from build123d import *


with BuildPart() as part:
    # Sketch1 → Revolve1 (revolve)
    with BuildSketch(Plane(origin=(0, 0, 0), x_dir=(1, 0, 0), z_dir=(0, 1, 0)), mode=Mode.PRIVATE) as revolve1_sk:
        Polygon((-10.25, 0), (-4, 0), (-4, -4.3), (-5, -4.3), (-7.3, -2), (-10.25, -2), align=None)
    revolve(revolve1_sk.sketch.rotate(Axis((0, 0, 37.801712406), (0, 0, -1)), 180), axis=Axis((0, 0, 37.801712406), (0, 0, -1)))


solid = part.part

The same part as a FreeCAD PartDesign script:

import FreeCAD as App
import Part
import Sketcher
Q = App.Units.Quantity

doc = App.newDocument("Part")
body = doc.addObject("PartDesign::Body", "Body")

# Sketch on XZ plane
sketch1 = body.newObject("Sketcher::SketchObject", "Sketch")
sketch1.AttachmentSupport = (doc.getObject("XZ_Plane"), [""])
sketch1.MapMode = "FlatFace"
sketch1.addGeometry([
    Part.LineSegment(App.Vector(-4, 0, 0), App.Vector(-10.2, 0, 0)),  # 0
    Part.LineSegment(App.Vector(-10.2, 0, 0), App.Vector(-10.2, 2, 0)),  # 1
    Part.LineSegment(App.Vector(-10.2, 2, 0), App.Vector(-7.3, 2, 0)),  # 2
    Part.LineSegment(App.Vector(-7.3, 2, 0), App.Vector(-5, 4.3, 0)),  # 3
    Part.LineSegment(App.Vector(-5, 4.3, 0), App.Vector(-4, 4.3, 0)),  # 4
    Part.LineSegment(App.Vector(-4, 4.3, 0), App.Vector(-4, 0, 0)),  # 5
], False)
sketch1.addConstraint([
    Sketcher.Constraint("Coincident", 0, 2, 1, 1),
    Sketcher.Constraint("Coincident", 1, 2, 2, 1),
    Sketcher.Constraint("Coincident", 2, 2, 3, 1),
    Sketcher.Constraint("Coincident", 3, 2, 4, 1),
    Sketcher.Constraint("Coincident", 4, 2, 5, 1),
    Sketcher.Constraint("Coincident", 5, 2, 0, 1),
    Sketcher.Constraint("Horizontal", 0),
    Sketcher.Constraint("Vertical", 1),
    Sketcher.Constraint("Horizontal", 2),
    Sketcher.Constraint("Horizontal", 4),
    Sketcher.Constraint("Vertical", 5),
    Sketcher.Constraint("PointOnObject", 0, 2, -1),
    Sketcher.Constraint("DistanceX", 4, 1, 4, 2, 1.0),
    Sketcher.Constraint("DistanceY", 1, 1, 1, 2, 2.0),
    Sketcher.Constraint("Angle", 3, Q("45 deg")),
    Sketcher.Constraint("DistanceY", 5, 2, 5, 1, 4.3),
    Sketcher.Constraint("DistanceX", 3, 2, -1, 1, 5.0),
    Sketcher.Constraint("DistanceX", 0, 2, 0, 1, 6.25),
])
revolution = body.newObject("PartDesign::Revolution", "Revolution")
revolution.Profile = sketch1
revolution.ReferenceAxis = (sketch1, ["V_Axis"])
revolution.Angle = 360

doc.recompute()
